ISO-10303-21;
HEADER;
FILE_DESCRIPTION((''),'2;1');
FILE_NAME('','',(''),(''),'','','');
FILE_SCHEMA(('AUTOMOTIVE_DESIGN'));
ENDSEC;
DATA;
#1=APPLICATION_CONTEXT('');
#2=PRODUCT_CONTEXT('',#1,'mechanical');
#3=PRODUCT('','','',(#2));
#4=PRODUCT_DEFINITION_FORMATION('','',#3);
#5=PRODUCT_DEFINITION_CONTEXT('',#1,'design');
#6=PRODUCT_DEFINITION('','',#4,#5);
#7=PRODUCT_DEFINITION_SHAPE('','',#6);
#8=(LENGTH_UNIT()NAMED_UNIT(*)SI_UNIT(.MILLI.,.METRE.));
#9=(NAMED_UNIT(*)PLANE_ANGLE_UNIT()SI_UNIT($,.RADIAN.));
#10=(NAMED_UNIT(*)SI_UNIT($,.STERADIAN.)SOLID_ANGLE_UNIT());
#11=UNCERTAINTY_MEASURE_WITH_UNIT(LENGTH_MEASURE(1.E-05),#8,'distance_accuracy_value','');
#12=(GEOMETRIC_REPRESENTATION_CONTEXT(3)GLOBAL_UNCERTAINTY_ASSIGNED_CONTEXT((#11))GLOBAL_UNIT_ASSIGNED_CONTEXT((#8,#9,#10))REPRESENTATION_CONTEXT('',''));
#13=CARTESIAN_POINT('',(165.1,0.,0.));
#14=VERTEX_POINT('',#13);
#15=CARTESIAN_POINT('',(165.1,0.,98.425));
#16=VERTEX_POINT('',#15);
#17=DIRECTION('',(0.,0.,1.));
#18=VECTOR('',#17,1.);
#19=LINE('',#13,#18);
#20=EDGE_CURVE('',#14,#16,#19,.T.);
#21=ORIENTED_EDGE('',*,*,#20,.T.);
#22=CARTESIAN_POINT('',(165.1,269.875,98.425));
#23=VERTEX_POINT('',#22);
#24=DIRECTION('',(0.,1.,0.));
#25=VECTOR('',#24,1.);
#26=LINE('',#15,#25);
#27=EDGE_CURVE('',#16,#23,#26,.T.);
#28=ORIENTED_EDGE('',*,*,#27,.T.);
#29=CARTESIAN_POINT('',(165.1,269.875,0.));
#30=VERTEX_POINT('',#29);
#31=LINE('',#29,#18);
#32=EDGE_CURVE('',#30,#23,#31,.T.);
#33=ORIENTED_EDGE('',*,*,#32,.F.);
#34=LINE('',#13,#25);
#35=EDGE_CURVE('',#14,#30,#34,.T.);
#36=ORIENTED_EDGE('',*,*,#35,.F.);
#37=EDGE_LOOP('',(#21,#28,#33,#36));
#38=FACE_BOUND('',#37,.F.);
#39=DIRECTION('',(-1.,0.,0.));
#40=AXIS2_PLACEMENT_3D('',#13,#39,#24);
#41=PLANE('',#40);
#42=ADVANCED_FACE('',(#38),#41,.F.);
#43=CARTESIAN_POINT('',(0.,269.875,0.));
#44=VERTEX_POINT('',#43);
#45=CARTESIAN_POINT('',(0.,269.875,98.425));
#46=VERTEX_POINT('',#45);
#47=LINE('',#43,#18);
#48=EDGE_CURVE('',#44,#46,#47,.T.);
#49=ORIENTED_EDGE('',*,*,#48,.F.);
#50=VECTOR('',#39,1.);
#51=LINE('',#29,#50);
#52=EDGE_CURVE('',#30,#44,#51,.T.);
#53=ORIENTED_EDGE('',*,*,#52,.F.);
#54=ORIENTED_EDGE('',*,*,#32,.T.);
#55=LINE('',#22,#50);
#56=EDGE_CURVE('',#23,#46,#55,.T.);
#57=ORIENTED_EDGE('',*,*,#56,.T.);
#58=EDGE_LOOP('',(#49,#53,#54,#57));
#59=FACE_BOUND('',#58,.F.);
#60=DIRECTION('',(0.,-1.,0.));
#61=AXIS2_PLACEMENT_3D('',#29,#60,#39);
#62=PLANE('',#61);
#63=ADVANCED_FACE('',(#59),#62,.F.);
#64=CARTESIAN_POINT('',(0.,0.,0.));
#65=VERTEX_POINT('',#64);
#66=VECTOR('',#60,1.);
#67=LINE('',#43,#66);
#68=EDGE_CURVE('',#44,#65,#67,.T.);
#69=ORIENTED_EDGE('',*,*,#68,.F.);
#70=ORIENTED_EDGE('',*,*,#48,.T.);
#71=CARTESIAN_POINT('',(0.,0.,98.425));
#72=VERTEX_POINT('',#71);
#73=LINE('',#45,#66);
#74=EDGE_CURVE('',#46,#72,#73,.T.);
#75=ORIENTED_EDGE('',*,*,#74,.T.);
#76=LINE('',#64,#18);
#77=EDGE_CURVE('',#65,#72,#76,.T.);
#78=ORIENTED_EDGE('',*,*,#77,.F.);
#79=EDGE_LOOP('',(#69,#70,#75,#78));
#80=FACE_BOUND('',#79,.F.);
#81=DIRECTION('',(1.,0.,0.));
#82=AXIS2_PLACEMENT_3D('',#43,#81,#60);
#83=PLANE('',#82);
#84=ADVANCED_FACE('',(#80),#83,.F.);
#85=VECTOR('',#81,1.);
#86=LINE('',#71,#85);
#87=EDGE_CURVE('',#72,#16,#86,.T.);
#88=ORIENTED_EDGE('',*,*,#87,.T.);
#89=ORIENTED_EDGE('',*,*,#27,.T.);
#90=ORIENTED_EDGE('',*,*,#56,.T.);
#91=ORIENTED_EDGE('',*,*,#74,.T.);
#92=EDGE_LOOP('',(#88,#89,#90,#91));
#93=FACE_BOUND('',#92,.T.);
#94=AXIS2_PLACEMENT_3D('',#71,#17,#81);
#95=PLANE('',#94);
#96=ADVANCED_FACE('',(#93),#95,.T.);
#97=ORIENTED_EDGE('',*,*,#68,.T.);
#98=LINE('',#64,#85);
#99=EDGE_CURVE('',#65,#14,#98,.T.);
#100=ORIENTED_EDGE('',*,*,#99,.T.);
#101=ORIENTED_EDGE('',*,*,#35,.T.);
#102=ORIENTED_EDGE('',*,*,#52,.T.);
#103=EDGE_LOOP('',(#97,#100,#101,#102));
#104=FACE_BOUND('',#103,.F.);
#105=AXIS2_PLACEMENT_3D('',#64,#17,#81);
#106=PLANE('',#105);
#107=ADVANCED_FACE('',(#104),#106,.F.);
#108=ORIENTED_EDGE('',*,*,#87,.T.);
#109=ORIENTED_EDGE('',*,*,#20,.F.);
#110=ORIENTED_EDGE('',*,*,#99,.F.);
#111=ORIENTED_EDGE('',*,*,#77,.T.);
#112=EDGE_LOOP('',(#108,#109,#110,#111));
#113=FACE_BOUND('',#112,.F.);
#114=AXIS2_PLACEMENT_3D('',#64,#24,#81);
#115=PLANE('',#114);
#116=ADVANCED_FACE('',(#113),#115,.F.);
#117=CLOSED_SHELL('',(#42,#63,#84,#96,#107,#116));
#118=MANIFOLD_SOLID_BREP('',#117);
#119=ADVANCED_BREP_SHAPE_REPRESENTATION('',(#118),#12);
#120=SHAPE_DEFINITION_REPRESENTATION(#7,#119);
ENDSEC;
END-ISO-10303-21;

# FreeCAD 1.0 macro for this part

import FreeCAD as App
import Part
import Sketcher
from FreeCAD import Vector
Q = App.Units.Quantity

doc = App.newDocument("Part")
body = doc.addObject("PartDesign::Body", "Body")

# Sketch on XY plane
sketch1 = doc.addObject("Sketcher::SketchObject", "Sketch")
body.addObject(sketch1)
sketch1.AttachmentSupport = (doc.XY_Plane, [""])
sketch1.MapMode = "FlatFace"
sketch1.addGeometry([
    Part.LineSegment(Vector(0, 269.875, 0), Vector(0, 0, 0)),
    Part.LineSegment(Vector(0, 0, 0), Vector(165.1, 0, 0)),
    Part.LineSegment(Vector(165.1, 0, 0), Vector(165.1, 269.875, 0)),
    Part.LineSegment(Vector(165.1, 269.875, 0), Vector(0, 269.875, 0)),
], False)
sketch1.addConstraint([
    Sketcher.Constraint("Coincident", 0, 2, 1, 1),
    Sketcher.Constraint("Coincident", 1, 2, 2, 1),
    Sketcher.Constraint("Coincident", 2, 2, 3, 1),
    Sketcher.Constraint("Coincident", 3, 2, 0, 1),
    Sketcher.Constraint("Vertical", 0),
    Sketcher.Constraint("Horizontal", 1),
    Sketcher.Constraint("Vertical", 2),
    Sketcher.Constraint("Horizontal", 3),
    Sketcher.Constraint("Coincident", 0, 2, -1, 1),
    Sketcher.Constraint("DistanceX", 1, 1, 1, 2, Q("6.5 in")),
    Sketcher.Constraint("DistanceY", 0, 2, 0, 1, Q("10.625 in")),
])
pad1 = doc.addObject("PartDesign::Pad", "Pad")
body.addObject(pad1)
pad1.Profile = sketch1
pad1.Length = Q("3.875 in")

doc.recompute()
